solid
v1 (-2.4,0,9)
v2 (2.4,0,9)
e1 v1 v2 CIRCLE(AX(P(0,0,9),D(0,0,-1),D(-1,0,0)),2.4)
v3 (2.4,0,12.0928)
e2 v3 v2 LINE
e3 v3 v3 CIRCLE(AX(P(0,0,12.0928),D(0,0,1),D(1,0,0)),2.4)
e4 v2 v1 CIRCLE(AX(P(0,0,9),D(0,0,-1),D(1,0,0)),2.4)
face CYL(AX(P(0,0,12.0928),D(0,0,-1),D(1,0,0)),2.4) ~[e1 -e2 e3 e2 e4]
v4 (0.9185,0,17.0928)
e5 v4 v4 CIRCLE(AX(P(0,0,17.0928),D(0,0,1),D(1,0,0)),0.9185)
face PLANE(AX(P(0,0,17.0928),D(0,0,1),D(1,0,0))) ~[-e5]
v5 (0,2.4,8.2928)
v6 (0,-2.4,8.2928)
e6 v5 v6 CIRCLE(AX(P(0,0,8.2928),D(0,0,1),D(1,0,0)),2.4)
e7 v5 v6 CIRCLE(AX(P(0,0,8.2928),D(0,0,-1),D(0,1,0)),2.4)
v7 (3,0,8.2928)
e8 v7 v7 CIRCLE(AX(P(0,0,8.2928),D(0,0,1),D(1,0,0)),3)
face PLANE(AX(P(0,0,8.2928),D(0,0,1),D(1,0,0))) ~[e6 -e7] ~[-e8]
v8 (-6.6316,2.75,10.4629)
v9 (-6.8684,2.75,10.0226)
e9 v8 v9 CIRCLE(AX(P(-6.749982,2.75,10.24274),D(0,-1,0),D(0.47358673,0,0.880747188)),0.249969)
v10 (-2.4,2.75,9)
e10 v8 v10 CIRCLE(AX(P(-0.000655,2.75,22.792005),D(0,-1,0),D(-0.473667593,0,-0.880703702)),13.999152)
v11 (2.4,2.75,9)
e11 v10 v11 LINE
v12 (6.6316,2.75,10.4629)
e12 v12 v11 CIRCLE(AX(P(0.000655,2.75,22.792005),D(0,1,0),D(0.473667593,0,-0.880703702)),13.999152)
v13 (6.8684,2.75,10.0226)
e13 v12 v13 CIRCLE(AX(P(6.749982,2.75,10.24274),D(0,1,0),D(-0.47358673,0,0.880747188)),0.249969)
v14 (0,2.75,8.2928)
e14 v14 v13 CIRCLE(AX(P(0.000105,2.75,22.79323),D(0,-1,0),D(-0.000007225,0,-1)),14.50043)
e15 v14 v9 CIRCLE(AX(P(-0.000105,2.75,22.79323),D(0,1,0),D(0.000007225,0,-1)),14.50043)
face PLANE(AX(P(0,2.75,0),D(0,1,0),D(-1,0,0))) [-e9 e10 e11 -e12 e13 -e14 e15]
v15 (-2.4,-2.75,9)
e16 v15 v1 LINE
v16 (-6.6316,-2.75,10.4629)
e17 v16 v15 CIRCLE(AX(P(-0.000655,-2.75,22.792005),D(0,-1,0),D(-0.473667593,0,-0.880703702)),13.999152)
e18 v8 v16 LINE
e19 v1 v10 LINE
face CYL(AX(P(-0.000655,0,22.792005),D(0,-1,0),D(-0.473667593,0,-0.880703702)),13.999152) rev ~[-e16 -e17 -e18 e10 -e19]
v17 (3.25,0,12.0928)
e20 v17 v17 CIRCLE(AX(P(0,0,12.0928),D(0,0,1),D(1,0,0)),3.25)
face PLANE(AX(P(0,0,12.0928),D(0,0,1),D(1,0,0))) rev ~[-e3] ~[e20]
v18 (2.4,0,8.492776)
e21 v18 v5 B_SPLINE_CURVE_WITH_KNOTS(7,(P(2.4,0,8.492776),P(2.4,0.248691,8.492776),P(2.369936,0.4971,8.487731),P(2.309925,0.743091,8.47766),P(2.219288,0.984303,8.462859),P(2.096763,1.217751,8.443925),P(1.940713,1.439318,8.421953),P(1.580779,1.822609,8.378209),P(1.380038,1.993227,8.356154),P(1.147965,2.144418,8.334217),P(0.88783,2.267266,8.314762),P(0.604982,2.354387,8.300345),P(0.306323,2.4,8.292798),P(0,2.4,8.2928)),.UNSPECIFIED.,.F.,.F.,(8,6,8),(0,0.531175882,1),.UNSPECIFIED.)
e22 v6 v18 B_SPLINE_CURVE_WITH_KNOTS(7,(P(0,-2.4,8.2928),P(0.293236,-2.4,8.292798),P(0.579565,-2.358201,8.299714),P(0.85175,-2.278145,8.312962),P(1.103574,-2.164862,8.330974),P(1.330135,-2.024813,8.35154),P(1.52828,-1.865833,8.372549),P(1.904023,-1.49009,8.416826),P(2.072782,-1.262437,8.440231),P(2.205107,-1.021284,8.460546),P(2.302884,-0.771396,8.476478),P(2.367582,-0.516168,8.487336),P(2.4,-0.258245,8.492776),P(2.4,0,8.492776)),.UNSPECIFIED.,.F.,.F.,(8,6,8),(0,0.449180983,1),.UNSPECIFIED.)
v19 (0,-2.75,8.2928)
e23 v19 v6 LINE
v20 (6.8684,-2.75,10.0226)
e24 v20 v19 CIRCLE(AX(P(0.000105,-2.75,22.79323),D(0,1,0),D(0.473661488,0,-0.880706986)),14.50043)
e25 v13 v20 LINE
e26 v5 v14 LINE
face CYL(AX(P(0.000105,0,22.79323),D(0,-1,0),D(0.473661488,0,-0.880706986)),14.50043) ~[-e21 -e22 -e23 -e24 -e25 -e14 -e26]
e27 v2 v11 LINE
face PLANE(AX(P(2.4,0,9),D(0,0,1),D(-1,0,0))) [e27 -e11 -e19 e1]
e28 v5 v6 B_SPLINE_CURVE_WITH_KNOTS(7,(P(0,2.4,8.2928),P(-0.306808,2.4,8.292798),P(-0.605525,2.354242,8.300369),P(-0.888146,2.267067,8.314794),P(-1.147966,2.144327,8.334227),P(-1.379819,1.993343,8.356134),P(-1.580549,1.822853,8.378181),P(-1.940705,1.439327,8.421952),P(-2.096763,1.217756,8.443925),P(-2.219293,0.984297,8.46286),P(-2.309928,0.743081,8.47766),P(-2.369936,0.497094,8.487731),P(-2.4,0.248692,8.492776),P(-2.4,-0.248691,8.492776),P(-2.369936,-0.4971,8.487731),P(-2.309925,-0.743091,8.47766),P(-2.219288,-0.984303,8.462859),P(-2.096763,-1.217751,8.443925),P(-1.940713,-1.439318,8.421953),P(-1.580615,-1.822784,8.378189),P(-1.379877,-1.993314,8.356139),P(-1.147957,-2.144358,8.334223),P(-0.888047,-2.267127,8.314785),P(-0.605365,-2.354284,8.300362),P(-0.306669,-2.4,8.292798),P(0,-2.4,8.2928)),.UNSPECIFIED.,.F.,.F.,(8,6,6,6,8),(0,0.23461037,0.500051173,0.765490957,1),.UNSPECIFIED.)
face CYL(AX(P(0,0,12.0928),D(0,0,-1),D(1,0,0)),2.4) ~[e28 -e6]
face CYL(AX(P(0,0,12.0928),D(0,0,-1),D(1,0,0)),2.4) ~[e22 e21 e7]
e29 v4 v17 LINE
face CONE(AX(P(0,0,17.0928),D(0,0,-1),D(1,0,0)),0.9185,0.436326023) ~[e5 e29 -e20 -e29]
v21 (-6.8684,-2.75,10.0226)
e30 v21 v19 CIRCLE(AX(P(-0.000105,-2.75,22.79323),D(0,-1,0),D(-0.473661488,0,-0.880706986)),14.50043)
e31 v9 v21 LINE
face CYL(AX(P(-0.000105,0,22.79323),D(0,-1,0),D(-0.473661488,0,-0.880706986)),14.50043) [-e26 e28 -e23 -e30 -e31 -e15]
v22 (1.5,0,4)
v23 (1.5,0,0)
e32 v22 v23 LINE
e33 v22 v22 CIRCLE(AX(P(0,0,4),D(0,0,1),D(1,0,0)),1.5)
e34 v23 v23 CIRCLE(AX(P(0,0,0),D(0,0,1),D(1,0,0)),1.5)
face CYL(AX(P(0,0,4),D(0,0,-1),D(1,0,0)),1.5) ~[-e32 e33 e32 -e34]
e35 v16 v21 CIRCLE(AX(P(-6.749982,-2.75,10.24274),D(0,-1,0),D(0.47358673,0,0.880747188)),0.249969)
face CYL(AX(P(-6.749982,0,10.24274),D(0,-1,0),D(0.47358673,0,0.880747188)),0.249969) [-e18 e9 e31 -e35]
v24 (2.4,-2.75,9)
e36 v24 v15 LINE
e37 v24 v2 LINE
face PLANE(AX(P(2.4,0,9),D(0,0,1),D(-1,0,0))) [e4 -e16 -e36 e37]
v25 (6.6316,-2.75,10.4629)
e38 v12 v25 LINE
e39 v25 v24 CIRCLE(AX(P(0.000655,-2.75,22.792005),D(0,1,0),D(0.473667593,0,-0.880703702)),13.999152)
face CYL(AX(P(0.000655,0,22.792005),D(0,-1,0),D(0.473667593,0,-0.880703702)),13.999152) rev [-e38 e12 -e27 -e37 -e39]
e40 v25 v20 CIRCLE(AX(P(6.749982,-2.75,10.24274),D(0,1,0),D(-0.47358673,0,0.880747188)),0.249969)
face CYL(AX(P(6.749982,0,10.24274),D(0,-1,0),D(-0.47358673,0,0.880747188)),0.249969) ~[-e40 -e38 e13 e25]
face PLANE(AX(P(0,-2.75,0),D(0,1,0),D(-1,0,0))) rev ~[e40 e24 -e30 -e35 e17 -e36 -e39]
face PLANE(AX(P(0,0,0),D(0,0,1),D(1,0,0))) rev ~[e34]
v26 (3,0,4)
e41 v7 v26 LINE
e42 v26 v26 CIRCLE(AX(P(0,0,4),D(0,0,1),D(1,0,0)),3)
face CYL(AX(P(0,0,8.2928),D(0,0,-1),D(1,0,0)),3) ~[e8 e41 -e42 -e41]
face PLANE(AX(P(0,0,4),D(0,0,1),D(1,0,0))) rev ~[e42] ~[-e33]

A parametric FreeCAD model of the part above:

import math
import FreeCAD as App
import Part
import Sketcher

V = App.Vector
Q = App.Units.Quantity

doc = App.newDocument("Part")
params = doc.addObject("Spreadsheet::Sheet", "Params")
for row, (alias, value) in enumerate([
    ("sketch1_height", "4 mm"),
    ("sketch1_width", "0.6 mm"),
    ("sketch1_width2", "0.85 mm"),
    ("revolution_angle", "360 deg"),
    ("sketch2_radius", "0.25 mm"),
    ("sketch2_width", "2.4 mm"),
    ("pad1_length", "5.5 mm"),
], start=1):
    params.set(f"A{row}", alias)
    params.set(f"B{row}", "=" + value)
    params.setAlias(f"B{row}", alias)

body = doc.addObject("PartDesign::Body", "Body")

# Sketch on XZ plane
sketch1 = doc.addObject("Sketcher::SketchObject", "Sketch")
body.addObject(sketch1)
sketch1.AttachmentSupport = (doc.XZ_Plane, [""])
sketch1.MapMode = "FlatFace"
sketch1.addGeometry([
    Part.LineSegment(V(1.5, 0, 0), V(0, 0, 0)),  # 0
    Part.LineSegment(V(0, 0, 0), V(0, 17.1, 0)),  # 1
    Part.LineSegment(V(0, 17.1, 0), V(0.9, 17.1, 0)),  # 2
    Part.LineSegment(V(0.9, 17.1, 0), V(3.2, 12.1, 0)),  # 3
    Part.LineSegment(V(3.2, 12.1, 0), V(2.4, 12.1, 0)),  # 4
    Part.LineSegment(V(2.4, 12.1, 0), V(2.4, 8.3, 0)),  # 5
    Part.LineSegment(V(2.4, 8.3, 0), V(3, 8.3, 0)),  # 6
    Part.LineSegment(V(3, 8.3, 0), V(3, 4, 0)),  # 7
    Part.LineSegment(V(3, 4, 0), V(1.5, 4, 0)),  # 8
    Part.LineSegment(V(1.5, 4, 0), V(1.5, 0, 0)),  # 9
], False)
sketch1.addConstraint([
    Sketcher.Constraint("Coincident", 0, 2, 1, 1),
    Sketcher.Constraint("Coincident", 1, 2, 2, 1),
    Sketcher.Constraint("Coincident", 2, 2, 3, 1),
    Sketcher.Constraint("Coincident", 3, 2, 4, 1),
    Sketcher.Constraint("Coincident", 4, 2, 5, 1),
    Sketcher.Constraint("Coincident", 5, 2, 6, 1),
    Sketcher.Constraint("Coincident", 6, 2, 7, 1),
    Sketcher.Constraint("Coincident", 7, 2, 8, 1),
    Sketcher.Constraint("Coincident", 8, 2, 9, 1),
    Sketcher.Constraint("Coincident", 9, 2, 0, 1),
    Sketcher.Constraint("Horizontal", 0),
    Sketcher.Constraint("Vertical", 1),
    Sketcher.Constraint("Horizontal", 2),
    Sketcher.Constraint("Horizontal", 4),
    Sketcher.Constraint("Vertical", 5),
    Sketcher.Constraint("Horizontal", 6),
    Sketcher.Constraint("Vertical", 7),
    Sketcher.Constraint("Horizontal", 8),
    Sketcher.Constraint("Vertical", 9),
    Sketcher.Constraint("Coincident", 0, 2, -1, 1),
    Sketcher.Constraint("Equal", 0, 8),
    Sketcher.Constraint("DistanceY", 9, 2, 9, 1, 4.0),
    Sketcher.Constraint("DistanceX", -1, 1, 6, 2, 3.0),
    Sketcher.Constraint("DistanceY", 3, 2, 2, 2, 5.0),
    Sketcher.Constraint("DistanceY", 5, 2, 2, 2, 8.8),
    Sketcher.Constraint("Angle", 3, Q("-65.0004 deg")),
    Sketcher.Constraint("DistanceX", 6, 1, 6, 2, 0.6),
    Sketcher.Constraint("DistanceX", 4, 2, 4, 1, 0.85),
    Sketcher.Constraint("DistanceY", 1, 1, 1, 2, 17.0928),
])
sketch1.setExpression("Constraints[21]", "Params.sketch1_height")
sketch1.setExpression("Constraints[26]", "Params.sketch1_width")
sketch1.setExpression("Constraints[27]", "Params.sketch1_width2")
revolution = doc.addObject("PartDesign::Revolution", "Revolution")
body.addObject(revolution)
revolution.Profile = sketch1
revolution.ReferenceAxis = (sketch1, ["V_Axis"])
revolution.setExpression("Angle", "Params.revolution_angle")

# Sketch on XZ plane
sketch2 = doc.addObject("Sketcher::SketchObject", "Sketch001")
body.addObject(sketch2)
sketch2.AttachmentSupport = (doc.XZ_Plane, [""])
sketch2.MapMode = "FlatFace"
sketch2.addGeometry([
    Part.LineSegment(V(0, 8.29, 0), V(0, 9, 0)),  # 0
    Part.LineSegment(V(0, 9, 0), V(2.4, 9, 0)),  # 1
    Part.ArcOfCircle(Part.Circle(V(0, 22.79, 0), V(0, 0, 1), 14), math.radians(-80.13), math.radians(-61.73)),  # 2
    Part.ArcOfCircle(Part.Circle(V(6.75, 10.24, 0), V(0, 0, 1), 0.25), math.radians(-62), math.radians(118)),  # 3
    Part.ArcOfCircle(Part.Circle(V(0, 22.79, 0), V(0, 0, 1), 14.5), math.radians(-90), math.radians(-62)),  # 4
], False)
sketch2.addConstraint([
    Sketcher.Constraint("Coincident", 0, 2, 1, 1),
    Sketcher.Constraint("Coincident", 1, 2, 2, 1),
    Sketcher.Constraint("Tangent", 2, 2, 3, 2),
    Sketcher.Constraint("Tangent", 3, 1, 4, 2),
    Sketcher.Constraint("Coincident", 4, 1, 0, 1),
    Sketcher.Constraint("Vertical", 0),
    Sketcher.Constraint("Horizontal", 1),
    Sketcher.Constraint("PointOnObject", 4, 3, -2),
    Sketcher.Constraint("PointOnObject", 0, 2, -2),
    Sketcher.Constraint("Radius", 3, 0.25),
    Sketcher.Constraint("DistanceX", 1, 1, 1, 2, 2.4),
    Sketcher.Constraint("DistanceY", -1, 1, 0, 2, 9.0),
    Sketcher.Constraint("Radius", 2, 13.9992),
    Sketcher.Constraint("Radius", 4, 14.5007),
    Sketcher.Constraint("DistanceX", -1, 1, 3, 3, 6.75),
    Sketcher.Constraint("DistanceY", 0, 1, 0, 2, 0.7072),
])
sketch2.setExpression("Constraints[9]", "Params.sketch2_radius")
sketch2.setExpression("Constraints[10]", "Params.sketch2_width")
pad1 = doc.addObject("PartDesign::Pad", "Pad")
body.addObject(pad1)
pad1.Profile = sketch2
pad1.setExpression("Length", "Params.pad1_length")
pad1.Midplane = True
doc.recompute()

mirrored = doc.addObject("PartDesign::Mirrored", "Mirrored")
body.addObject(mirrored)
mirrored.Originals = [pad1]
mirrored.MirrorPlane = (doc.YZ_Plane, [""])
body.Tip = mirrored

doc.recompute()
